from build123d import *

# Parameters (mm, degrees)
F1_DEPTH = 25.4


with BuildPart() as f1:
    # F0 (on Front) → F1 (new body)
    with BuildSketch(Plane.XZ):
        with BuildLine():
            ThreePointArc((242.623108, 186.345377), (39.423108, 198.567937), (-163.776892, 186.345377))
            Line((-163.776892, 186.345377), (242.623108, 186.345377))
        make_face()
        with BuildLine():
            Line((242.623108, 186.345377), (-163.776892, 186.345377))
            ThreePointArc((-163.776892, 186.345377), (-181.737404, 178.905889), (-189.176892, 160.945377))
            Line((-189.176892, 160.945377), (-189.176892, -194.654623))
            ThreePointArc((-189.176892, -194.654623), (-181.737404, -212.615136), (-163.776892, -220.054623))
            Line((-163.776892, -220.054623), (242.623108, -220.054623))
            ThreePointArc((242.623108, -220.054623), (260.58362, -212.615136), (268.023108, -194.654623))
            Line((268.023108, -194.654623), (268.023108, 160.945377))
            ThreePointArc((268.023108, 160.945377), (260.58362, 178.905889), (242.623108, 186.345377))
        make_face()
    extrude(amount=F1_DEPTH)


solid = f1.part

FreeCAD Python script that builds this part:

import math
import FreeCAD as App
import Part
import Sketcher
Q = App.Units.Quantity

doc = App.newDocument("Part")
body = doc.addObject("PartDesign::Body", "Body")

sketch1 = body.newObject("Sketcher::SketchObject", "Sketch")
sketch1.AttachmentSupport = (doc.getObject("XZ_Plane"), [""])
sketch1.MapMode = "FlatFace"
sketch1.addGeometry([
    Part.ArcOfCircle(Part.Circle(App.Vector(39.423108, -1496.642844, 0), App.Vector(0, 0, 1), 1695.210781), math.radians(83.115567), math.radians(96.884433)),
    Part.ArcOfCircle(Part.Circle(App.Vector(-163.776891, 160.945376, 0), App.Vector(0, 0, 1), 25.400001), math.radians(90.000002), math.radians(179.999998)),
    Part.LineSegment(App.Vector(-189.176892, 160.945377, 0), App.Vector(-189.176892, -194.654623, 0)),
    Part.ArcOfCircle(Part.Circle(App.Vector(-163.776893, -194.654624, 0), App.Vector(0, 0, 1), 25.399999), math.radians(179.999998), math.radians(270.000002)),
    Part.LineSegment(App.Vector(-163.776892, -220.054623, 0), App.Vector(242.623108, -220.054623, 0)),
    Part.ArcOfCircle(Part.Circle(App.Vector(242.623109, -194.654624, 0), App.Vector(0, 0, 1), 25.399999), math.radians(-90.000002), math.radians(0.000002)),
    Part.LineSegment(App.Vector(268.023108, -194.654623, 0), App.Vector(268.023108, 160.945377, 0)),
    Part.ArcOfCircle(Part.Circle(App.Vector(242.623107, 160.945376, 0), App.Vector(0, 0, 1), 25.400001), math.radians(0.000002), math.radians(89.999998)),
], False)
sketch1.addConstraint([
    Sketcher.Constraint("Coincident", 0, 2, 1, 1),
    Sketcher.Constraint("Tangent", 1, 2, 2, 1),
    Sketcher.Constraint("Tangent", 2, 2, 3, 1),
    Sketcher.Constraint("Tangent", 3, 2, 4, 1),
    Sketcher.Constraint("Tangent", 4, 2, 5, 1),
    Sketcher.Constraint("Tangent", 5, 2, 6, 1),
    Sketcher.Constraint("Tangent", 6, 2, 7, 1),
    Sketcher.Constraint("Coincident", 7, 2, 0, 1),
    Sketcher.Constraint("Vertical", 2),
    Sketcher.Constraint("Horizontal", 4),
    Sketcher.Constraint("Vertical", 6),
    Sketcher.Constraint("Equal", 1, 3),
    Sketcher.Constraint("Equal", 3, 5),
    Sketcher.Constraint("Equal", 5, 7),
    Sketcher.Constraint("Horizontal", 1, 3, 7, 3),
    Sketcher.Constraint("Vertical", 3, 3, 0, 2),
    Sketcher.Constraint("Vertical", 4, 2, 7, 2),
    Sketcher.Constraint("Radius", 1, Q("1 in")),
    Sketcher.Constraint("DistanceX", 4, 1, 4, 2, Q("16 in")),
    Sketcher.Constraint("DistanceY", 2, 2, 2, 1, Q("14 in")),
    Sketcher.Constraint("Radius", 0, Q("1695.210781 mm")),
    Sketcher.Constraint("DistanceX", 1, 3, -1, 1, Q("163.776891 mm")),
    Sketcher.Constraint("DistanceY", 0, 3, -1, 1, Q("1496.642844 mm")),
])
pad1 = body.newObject("PartDesign::Pad", "Pad")
pad1.Profile = sketch1
pad1.Length = Q("1 in")

doc.recompute()
